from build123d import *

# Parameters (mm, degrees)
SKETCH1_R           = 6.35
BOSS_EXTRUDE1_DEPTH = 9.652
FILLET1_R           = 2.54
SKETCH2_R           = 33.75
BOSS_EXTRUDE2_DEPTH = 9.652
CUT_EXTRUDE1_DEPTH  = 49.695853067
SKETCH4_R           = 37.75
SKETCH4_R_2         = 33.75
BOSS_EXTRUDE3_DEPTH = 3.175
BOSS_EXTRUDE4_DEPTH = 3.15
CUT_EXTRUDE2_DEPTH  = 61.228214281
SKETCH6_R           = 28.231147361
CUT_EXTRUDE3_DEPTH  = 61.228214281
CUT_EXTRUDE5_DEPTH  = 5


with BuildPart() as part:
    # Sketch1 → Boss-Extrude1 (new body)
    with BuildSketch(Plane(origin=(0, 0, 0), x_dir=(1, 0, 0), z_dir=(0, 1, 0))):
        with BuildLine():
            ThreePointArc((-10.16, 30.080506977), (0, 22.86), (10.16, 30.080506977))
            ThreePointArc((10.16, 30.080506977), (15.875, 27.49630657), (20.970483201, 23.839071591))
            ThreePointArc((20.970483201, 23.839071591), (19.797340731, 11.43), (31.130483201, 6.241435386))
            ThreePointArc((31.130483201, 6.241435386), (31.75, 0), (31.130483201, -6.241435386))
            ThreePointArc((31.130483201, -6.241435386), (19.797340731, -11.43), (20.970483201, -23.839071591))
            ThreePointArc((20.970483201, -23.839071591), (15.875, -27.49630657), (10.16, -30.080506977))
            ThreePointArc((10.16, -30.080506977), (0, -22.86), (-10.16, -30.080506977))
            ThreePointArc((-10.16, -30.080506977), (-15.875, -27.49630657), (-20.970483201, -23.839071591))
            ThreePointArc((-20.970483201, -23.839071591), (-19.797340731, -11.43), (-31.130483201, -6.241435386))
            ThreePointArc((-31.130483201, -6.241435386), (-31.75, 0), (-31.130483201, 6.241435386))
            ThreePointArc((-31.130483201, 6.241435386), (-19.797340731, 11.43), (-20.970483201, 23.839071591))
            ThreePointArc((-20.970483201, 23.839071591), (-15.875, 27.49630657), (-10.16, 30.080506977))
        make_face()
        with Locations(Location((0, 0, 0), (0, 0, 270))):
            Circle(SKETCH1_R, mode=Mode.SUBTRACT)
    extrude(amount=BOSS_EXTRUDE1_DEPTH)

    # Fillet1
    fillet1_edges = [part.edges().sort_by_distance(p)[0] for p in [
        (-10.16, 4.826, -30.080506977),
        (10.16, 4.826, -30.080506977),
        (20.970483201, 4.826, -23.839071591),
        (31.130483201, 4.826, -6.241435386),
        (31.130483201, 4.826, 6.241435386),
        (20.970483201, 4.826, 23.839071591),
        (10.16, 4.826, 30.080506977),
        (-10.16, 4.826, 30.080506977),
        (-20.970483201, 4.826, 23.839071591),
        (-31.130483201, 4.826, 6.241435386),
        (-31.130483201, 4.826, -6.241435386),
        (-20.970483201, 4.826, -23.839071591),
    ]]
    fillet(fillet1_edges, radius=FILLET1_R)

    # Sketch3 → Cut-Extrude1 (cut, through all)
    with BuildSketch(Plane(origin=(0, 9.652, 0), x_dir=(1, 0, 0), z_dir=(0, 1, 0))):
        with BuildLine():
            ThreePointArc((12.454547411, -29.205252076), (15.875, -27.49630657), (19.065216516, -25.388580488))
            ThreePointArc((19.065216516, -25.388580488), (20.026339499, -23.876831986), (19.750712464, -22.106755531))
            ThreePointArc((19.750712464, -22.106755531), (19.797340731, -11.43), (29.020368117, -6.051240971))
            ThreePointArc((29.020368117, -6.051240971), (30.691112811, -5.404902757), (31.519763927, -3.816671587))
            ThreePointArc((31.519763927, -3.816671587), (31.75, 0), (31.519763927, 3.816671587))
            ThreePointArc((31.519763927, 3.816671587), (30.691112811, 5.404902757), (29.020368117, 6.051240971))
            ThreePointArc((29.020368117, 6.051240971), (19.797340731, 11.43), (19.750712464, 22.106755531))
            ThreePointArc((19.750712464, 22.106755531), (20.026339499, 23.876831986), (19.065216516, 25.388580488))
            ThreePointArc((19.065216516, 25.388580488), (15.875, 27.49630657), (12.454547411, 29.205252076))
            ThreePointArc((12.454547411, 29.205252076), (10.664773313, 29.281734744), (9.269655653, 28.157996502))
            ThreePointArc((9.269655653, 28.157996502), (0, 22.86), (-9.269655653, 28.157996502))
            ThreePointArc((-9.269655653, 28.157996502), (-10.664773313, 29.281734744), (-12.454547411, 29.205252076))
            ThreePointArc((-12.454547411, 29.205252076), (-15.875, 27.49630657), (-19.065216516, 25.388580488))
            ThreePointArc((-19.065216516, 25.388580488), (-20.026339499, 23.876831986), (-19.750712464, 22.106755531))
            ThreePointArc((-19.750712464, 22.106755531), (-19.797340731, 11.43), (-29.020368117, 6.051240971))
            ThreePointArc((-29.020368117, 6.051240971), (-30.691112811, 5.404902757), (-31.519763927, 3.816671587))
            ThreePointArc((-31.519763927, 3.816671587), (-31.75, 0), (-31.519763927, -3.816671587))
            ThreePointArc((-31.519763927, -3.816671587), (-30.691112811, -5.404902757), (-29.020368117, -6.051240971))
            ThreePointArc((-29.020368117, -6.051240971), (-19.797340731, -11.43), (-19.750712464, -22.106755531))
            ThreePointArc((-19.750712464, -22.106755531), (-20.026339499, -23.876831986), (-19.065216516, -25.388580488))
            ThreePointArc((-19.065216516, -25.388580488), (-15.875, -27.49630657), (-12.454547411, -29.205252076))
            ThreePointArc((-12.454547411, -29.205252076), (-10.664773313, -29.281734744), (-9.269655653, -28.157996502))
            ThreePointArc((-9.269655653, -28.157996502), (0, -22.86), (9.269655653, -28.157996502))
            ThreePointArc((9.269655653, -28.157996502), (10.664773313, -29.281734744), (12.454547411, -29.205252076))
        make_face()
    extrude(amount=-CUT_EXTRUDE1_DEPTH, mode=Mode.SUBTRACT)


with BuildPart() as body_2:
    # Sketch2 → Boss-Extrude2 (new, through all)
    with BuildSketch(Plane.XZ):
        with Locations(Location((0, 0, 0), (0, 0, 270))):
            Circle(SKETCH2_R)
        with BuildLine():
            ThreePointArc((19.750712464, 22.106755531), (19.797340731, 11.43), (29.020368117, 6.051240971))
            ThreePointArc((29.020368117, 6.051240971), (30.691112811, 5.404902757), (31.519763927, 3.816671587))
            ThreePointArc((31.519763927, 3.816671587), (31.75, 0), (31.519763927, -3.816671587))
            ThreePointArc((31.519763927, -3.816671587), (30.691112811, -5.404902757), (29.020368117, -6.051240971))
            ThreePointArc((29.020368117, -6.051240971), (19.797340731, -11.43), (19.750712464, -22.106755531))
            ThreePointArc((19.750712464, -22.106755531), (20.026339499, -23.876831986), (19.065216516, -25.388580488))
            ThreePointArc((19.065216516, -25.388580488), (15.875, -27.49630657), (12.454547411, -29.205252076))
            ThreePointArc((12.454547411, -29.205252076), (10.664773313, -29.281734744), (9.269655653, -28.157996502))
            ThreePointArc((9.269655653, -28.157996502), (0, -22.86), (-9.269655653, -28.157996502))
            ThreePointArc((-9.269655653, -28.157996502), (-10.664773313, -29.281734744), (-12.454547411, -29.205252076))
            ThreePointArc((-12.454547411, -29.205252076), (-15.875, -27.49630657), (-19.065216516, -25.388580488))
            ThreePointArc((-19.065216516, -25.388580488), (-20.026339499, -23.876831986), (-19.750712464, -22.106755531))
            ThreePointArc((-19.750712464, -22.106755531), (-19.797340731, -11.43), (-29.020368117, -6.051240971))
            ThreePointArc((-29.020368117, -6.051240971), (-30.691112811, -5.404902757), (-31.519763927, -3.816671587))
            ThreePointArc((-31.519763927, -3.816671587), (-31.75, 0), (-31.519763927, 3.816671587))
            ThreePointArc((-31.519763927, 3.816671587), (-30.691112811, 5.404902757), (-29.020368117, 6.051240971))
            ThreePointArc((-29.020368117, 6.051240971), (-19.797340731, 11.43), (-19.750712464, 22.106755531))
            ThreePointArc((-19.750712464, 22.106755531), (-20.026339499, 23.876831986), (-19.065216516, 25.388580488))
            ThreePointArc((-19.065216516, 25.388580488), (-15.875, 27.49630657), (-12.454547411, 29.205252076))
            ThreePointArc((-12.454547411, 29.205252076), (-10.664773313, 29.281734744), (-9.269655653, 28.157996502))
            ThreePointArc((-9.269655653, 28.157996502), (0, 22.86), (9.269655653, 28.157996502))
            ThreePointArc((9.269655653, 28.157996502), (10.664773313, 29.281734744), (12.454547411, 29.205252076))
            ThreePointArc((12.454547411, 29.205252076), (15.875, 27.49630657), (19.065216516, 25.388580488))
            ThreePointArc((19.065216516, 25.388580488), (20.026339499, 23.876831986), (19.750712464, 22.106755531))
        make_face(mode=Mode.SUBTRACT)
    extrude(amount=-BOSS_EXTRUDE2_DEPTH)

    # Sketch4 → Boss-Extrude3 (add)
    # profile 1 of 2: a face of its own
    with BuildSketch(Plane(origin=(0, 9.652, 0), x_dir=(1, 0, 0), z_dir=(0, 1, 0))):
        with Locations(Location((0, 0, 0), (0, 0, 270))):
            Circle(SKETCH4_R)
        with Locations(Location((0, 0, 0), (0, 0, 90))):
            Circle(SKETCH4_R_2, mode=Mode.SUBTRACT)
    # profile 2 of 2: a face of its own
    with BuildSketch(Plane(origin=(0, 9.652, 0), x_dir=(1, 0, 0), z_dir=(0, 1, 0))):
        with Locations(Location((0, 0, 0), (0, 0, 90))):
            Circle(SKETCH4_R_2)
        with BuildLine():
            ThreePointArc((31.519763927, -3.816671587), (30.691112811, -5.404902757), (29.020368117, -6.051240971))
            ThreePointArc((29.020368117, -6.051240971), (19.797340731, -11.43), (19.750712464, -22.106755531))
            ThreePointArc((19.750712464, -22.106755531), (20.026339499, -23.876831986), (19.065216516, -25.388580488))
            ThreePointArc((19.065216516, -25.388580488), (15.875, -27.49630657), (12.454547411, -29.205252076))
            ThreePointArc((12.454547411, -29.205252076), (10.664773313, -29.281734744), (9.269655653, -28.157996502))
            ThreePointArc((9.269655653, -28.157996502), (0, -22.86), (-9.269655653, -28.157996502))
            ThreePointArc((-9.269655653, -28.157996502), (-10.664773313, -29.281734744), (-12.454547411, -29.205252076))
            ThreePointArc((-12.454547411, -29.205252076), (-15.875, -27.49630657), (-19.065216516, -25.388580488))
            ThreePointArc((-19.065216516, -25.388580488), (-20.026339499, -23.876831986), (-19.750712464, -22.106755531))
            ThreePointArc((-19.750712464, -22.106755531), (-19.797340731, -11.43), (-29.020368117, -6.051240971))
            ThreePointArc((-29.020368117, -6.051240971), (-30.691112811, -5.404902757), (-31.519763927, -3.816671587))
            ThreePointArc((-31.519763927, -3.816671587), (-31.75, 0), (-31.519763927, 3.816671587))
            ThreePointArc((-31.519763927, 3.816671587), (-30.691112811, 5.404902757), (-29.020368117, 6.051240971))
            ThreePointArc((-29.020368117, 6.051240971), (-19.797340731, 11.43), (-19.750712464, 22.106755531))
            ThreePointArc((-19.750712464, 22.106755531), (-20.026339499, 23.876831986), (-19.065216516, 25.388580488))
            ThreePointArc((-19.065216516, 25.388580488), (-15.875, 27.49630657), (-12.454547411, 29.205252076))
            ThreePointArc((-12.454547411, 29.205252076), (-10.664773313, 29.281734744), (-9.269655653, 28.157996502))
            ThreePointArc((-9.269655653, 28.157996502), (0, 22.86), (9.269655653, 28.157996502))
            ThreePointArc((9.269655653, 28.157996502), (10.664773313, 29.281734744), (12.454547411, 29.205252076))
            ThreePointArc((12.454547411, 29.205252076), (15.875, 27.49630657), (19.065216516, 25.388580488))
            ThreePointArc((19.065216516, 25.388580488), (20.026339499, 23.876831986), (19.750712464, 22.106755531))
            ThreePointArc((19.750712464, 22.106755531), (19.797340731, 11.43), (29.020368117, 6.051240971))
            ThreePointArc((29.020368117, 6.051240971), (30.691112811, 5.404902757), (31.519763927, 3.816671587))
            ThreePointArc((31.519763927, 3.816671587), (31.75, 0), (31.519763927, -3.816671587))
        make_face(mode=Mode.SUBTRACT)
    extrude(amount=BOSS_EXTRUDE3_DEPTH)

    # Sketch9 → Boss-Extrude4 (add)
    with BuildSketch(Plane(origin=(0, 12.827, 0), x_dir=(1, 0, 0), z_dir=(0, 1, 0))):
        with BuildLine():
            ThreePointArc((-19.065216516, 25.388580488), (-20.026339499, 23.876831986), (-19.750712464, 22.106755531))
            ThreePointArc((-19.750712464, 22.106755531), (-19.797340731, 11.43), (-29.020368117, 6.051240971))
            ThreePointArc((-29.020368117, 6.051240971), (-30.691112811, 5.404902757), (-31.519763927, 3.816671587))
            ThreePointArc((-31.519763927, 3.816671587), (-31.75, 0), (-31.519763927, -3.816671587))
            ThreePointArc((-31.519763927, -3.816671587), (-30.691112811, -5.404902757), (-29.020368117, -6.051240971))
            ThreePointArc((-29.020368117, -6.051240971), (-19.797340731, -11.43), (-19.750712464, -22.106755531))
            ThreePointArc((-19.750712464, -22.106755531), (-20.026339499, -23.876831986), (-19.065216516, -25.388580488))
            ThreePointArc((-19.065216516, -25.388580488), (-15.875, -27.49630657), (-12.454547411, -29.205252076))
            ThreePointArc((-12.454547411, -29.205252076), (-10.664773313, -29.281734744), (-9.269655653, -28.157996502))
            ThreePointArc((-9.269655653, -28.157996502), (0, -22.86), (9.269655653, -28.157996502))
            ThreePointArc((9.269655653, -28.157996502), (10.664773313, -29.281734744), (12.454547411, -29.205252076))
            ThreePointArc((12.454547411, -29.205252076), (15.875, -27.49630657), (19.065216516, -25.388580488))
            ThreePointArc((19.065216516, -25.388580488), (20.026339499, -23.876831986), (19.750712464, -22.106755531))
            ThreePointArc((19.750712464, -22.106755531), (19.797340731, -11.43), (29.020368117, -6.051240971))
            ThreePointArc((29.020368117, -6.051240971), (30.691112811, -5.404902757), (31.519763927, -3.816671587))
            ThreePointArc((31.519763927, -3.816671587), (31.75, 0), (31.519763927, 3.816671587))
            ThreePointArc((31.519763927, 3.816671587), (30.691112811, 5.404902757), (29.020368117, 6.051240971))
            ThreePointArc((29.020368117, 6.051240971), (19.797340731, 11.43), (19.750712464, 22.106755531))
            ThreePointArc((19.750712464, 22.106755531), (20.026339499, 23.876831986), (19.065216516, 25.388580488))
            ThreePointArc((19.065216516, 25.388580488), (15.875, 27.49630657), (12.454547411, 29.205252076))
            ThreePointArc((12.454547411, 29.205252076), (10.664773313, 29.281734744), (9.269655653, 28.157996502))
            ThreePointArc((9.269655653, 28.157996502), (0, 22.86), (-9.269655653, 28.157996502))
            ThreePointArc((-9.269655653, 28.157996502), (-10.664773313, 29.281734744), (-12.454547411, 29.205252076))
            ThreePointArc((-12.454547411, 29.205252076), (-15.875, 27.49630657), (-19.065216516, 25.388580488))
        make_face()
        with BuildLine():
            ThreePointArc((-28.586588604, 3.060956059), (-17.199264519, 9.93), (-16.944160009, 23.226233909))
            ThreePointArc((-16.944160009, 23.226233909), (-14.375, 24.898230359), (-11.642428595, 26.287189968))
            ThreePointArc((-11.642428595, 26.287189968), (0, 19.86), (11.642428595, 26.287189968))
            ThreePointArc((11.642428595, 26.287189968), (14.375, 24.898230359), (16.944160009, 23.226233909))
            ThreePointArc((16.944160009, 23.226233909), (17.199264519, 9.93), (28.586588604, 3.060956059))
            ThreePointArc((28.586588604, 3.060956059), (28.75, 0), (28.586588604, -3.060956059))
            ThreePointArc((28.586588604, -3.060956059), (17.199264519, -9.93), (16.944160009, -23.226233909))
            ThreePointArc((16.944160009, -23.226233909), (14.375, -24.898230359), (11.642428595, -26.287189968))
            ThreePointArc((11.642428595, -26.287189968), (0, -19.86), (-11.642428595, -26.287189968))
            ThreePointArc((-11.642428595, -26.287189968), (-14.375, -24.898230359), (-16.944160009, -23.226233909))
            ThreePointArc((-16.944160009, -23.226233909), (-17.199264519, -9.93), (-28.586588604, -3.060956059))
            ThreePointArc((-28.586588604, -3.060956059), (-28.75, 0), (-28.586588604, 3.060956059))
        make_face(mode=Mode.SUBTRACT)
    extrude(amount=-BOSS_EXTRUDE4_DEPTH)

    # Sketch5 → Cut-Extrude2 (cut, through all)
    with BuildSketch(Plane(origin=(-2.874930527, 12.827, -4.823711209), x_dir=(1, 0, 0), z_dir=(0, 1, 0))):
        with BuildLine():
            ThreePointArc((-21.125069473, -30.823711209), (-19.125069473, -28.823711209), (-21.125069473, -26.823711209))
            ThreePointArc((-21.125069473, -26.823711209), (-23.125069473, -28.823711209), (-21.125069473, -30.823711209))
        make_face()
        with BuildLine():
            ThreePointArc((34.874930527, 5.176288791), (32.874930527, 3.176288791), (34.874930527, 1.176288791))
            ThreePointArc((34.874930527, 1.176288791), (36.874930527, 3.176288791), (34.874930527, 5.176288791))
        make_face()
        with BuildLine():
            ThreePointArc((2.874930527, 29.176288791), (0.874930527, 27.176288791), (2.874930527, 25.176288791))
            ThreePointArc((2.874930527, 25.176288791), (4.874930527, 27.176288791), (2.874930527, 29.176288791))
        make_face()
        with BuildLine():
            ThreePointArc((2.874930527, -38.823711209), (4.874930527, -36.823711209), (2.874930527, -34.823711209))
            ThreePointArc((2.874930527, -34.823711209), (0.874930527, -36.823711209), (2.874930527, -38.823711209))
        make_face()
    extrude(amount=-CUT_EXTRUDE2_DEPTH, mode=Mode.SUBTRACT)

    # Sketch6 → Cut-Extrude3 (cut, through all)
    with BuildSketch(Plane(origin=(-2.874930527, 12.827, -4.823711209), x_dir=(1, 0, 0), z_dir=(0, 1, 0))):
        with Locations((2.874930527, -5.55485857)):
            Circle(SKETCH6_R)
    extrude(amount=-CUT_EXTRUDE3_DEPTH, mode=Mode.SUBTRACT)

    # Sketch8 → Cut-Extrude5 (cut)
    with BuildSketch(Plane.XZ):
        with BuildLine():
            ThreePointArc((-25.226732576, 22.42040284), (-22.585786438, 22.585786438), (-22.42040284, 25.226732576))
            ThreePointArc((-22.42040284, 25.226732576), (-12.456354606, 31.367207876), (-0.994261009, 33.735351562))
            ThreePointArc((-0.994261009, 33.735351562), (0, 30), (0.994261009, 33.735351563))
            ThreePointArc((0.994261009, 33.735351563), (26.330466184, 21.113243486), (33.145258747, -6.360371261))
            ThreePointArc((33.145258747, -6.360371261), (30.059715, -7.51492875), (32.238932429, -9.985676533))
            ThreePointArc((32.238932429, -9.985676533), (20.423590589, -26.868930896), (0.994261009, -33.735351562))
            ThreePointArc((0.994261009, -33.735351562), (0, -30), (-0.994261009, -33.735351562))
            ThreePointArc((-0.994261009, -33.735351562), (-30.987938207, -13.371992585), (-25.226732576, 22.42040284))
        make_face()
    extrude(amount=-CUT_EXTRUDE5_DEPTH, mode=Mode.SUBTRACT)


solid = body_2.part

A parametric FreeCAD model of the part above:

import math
import FreeCAD as App
import Part
import Sketcher

V = App.Vector
Q = App.Units.Quantity


def edges_at(feature, points):
    """Names of the edges that pass closest to the given points."""
    edges = feature.Shape.Edges
    near = lambda p: min(range(len(edges)), key=lambda i: edges[i].distToShape(Part.Vertex(*p))[0])
    return sorted({f"Edge{near(p) + 1}" for p in points})

doc = App.newDocument("Part")
body = doc.addObject("PartDesign::Body", "Body")

sketch1 = body.newObject("Sketcher::SketchObject", "Sketch")
sketch1.AttachmentSupport = (doc.getObject("XZ_Plane"), [""])
sketch1.MapMode = "FlatFace"
sketch1.addGeometry([
    Part.ArcOfCircle(Part.Circle(V(0, -34, 0), V(0, 0, 1), 11), math.radians(19), math.radians(161)),
    Part.ArcOfCircle(Part.Circle(V(0, 0, 0), V(0, 0, 1), 32), math.radians(-131), math.radians(-109)),
    Part.ArcOfCircle(Part.Circle(V(-29, -17, 0), V(0, 0, 1), 11), math.radians(-41), math.radians(101)),
    Part.ArcOfCircle(Part.Circle(V(0, 0, 0), V(0, 0, 1), 32), math.radians(169), math.radians(191)),
    Part.ArcOfCircle(Part.Circle(V(-29, 17, 0), V(0, 0, 1), 11), math.radians(-101), math.radians(41)),
    Part.ArcOfCircle(Part.Circle(V(0, 0, 0), V(0, 0, 1), 32), math.radians(109), math.radians(131)),
    Part.ArcOfCircle(Part.Circle(V(0, 34, 0), V(0, 0, 1), 11), math.radians(-161), math.radians(-19)),
    Part.ArcOfCircle(Part.Circle(V(0, 0, 0), V(0, 0, 1), 32), math.radians(49), math.radians(71)),
    Part.ArcOfCircle(Part.Circle(V(29, 17, 0), V(0, 0, 1), 11), math.radians(139), math.radians(281)),
    Part.ArcOfCircle(Part.Circle(V(0, 0, 0), V(0, 0, 1), 32), math.radians(-11), math.radians(11)),
    Part.ArcOfCircle(Part.Circle(V(29, -17, 0), V(0, 0, 1), 11), math.radians(79), math.radians(221)),
    Part.ArcOfCircle(Part.Circle(V(0, 0, 0), V(0, 0, 1), 32), math.radians(-71), math.radians(-49)),
    Part.Circle(V(0, 0, 0), V(0, 0, 1), 6),
], False)
sketch1.addConstraint([
    Sketcher.Constraint("Coincident", 0, 2, 1, 2),
    Sketcher.Constraint("Coincident", 1, 1, 2, 1),
    Sketcher.Constraint("Coincident", 2, 2, 3, 2),
    Sketcher.Constraint("Coincident", 3, 1, 4, 1),
    Sketcher.Constraint("Coincident", 4, 2, 5, 2),
    Sketcher.Constraint("Coincident", 5, 1, 6, 1),
    Sketcher.Constraint("Coincident", 6, 2, 7, 2),
    Sketcher.Constraint("Coincident", 7, 1, 8, 1),
    Sketcher.Constraint("Coincident", 8, 2, 9, 2),
    Sketcher.Constraint("Coincident", 9, 1, 10, 1),
    Sketcher.Constraint("Coincident", 10, 2, 11, 2),
    Sketcher.Constraint("Coincident", 11, 1, 0, 1),
    Sketcher.Constraint("Coincident", 1, 3, -1, 1),
    Sketcher.Constraint("Coincident", 3, 3, -1, 1),
    Sketcher.Constraint("Coincident", 5, 3, -1, 1),
    Sketcher.Constraint("Coincident", 7, 3, -1, 1),
    Sketcher.Constraint("Coincident", 9, 3, -1, 1),
    Sketcher.Constraint("Coincident", 11, 3, -1, 1),
    Sketcher.Constraint("Coincident", 12, 3, -1, 1),
    Sketcher.Constraint("Equal", 0, 2),
    Sketcher.Constraint("Equal", 1, 3),
    Sketcher.Constraint("Equal", 2, 4),
    Sketcher.Constraint("Equal", 3, 5),
    Sketcher.Constraint("Equal", 4, 6),
    Sketcher.Constraint("Equal", 5, 7),
    Sketcher.Constraint("Equal", 6, 8),
    Sketcher.Constraint("Equal", 7, 9),
    Sketcher.Constraint("Equal", 8, 10),
    Sketcher.Constraint("Equal", 9, 11),
    Sketcher.Constraint("Symmetric", 0, 3, 6, 3, -1, 1),
    Sketcher.Constraint("Symmetric", 2, 3, 8, 3, -1, 1),
    Sketcher.Constraint("Symmetric", 4, 3, 10, 3, -1, 1),
    Sketcher.Constraint("Symmetric", 4, 3, 8, 3, -2),
    Sketcher.Constraint("PointOnObject", 0, 3, -2),
    Sketcher.Constraint("Diameter", 12, Q("0.5 in")),
    Sketcher.Constraint("Radius", 1, Q("1.25 in")),
    Sketcher.Constraint("DistanceX", 0, 2, -1, 1, Q("0.4 in")),
    Sketcher.Constraint("DistanceX", 2, 2, 1, 1, Q("0.4 in")),
    Sketcher.Constraint("Radius", 0, Q("10.758339 mm")),
    Sketcher.Constraint("DistanceY", 2, 3, -1, 1, Q("16.809169 mm")),
])
pad1 = body.newObject("PartDesign::Pad", "Pad")
pad1.Profile = sketch1
pad1.Length = Q("0.38 in")
pad1.Reversed = True
doc.recompute()

fillet = body.newObject("PartDesign::Fillet", "Fillet")
fillet.Base = (pad1, edges_at(pad1, [
    (-10.16, 4.826, -30.081),
    (10.16, 4.826, -30.081),
    (20.97, 4.826, -23.839),
    (31.13, 4.826, -6.241),
    (31.13, 4.826, 6.241),
    (20.97, 4.826, 23.839),
    (10.16, 4.826, 30.081),
    (-10.16, 4.826, 30.081),
    (-20.97, 4.826, 23.839),
    (-31.13, 4.826, 6.241),
    (-31.13, 4.826, -6.241),
    (-20.97, 4.826, -23.839),
]))
fillet.Radius = Q("0.1 in")

sketch2 = body.newObject("Sketcher::SketchObject", "Sketch001")
sketch2.AttachmentSupport = (doc.getObject("XZ_Plane"), [""])
sketch2.MapMode = "FlatFace"
sketch2.AttachmentOffset = App.Placement(V(0, 0, -0.38 * 25.4), App.Rotation())
sketch2.addGeometry([
    Part.ArcOfCircle(Part.Circle(V(0, 0, 0), V(0, 0, 1), 31.8), math.radians(53.1), math.radians(66.9)),
    Part.ArcOfCircle(Part.Circle(V(17.5, 23.4, 0), V(0, 0, 1), 2.5), math.radians(-29), math.radians(53)),
    Part.ArcOfCircle(Part.Circle(V(29.1, 16.8, 0), V(0, 0, 1), 10.8), math.radians(151), math.radians(269)),
    Part.ArcOfCircle(Part.Circle(V(29, 3.5, 0), V(0, 0, 1), 2.5), math.radians(7), math.radians(89)),
    Part.ArcOfCircle(Part.Circle(V(0, 0, 0), V(0, 0, 1), 31.8), math.radians(-6.9), math.radians(6.9)),
    Part.ArcOfCircle(Part.Circle(V(29, -3.5, 0), V(0, 0, 1), 2.5), math.radians(-89), math.radians(-7)),
    Part.ArcOfCircle(Part.Circle(V(29.1, -16.8, 0), V(0, 0, 1), 10.8), math.radians(91), math.radians(209)),
    Part.ArcOfCircle(Part.Circle(V(17.5, -23.4, 0), V(0, 0, 1), 2.5), math.radians(-53), math.radians(29)),
    Part.ArcOfCircle(Part.Circle(V(0, 0, 0), V(0, 0, 1), 31.8), math.radians(-66.9), math.radians(-53.1)),
    Part.ArcOfCircle(Part.Circle(V(11.5, -26.9, 0), V(0, 0, 1), 2.5), math.radians(-149), math.radians(-67)),
    Part.ArcOfCircle(Part.Circle(V(0, -33.6, 0), V(0, 0, 1), 10.8), math.radians(31), math.radians(149)),
    Part.ArcOfCircle(Part.Circle(V(-11.5, -26.9, 0), V(0, 0, 1), 2.5), math.radians(-113), math.radians(-31)),
    Part.ArcOfCircle(Part.Circle(V(0, 0, 0), V(0, 0, 1), 31.8), math.radians(-126.9), math.radians(-113.1)),
    Part.ArcOfCircle(Part.Circle(V(-17.5, -23.4, 0), V(0, 0, 1), 2.5), math.radians(151), math.radians(233)),
    Part.ArcOfCircle(Part.Circle(V(-29.1, -16.8, 0), V(0, 0, 1), 10.8), math.radians(-29), math.radians(89)),
    Part.ArcOfCircle(Part.Circle(V(-29, -3.5, 0), V(0, 0, 1), 2.5), math.radians(-173), math.radians(-91)),
    Part.ArcOfCircle(Part.Circle(V(0, 0, 0), V(0, 0, 1), 31.8), math.radians(173.1), math.radians(186.9)),
    Part.ArcOfCircle(Part.Circle(V(-29, 3.5, 0), V(0, 0, 1), 2.5), math.radians(91), math.radians(173)),
    Part.ArcOfCircle(Part.Circle(V(-29.1, 16.8, 0), V(0, 0, 1), 10.8), math.radians(-89), math.radians(29)),
    Part.ArcOfCircle(Part.Circle(V(-17.5, 23.4, 0), V(0, 0, 1), 2.5), math.radians(127), math.radians(209)),
    Part.ArcOfCircle(Part.Circle(V(0, 0, 0), V(0, 0, 1), 31.8), math.radians(113.1), math.radians(126.9)),
    Part.ArcOfCircle(Part.Circle(V(-11.5, 26.9, 0), V(0, 0, 1), 2.5), math.radians(31), math.radians(113)),
    Part.ArcOfCircle(Part.Circle(V(0, 33.6, 0), V(0, 0, 1), 10.8), math.radians(-149), math.radians(-31)),
    Part.ArcOfCircle(Part.Circle(V(11.5, 26.9, 0), V(0, 0, 1), 2.5), math.radians(67), math.radians(149)),
], False)
sketch2.addConstraint([
    Sketcher.Constraint("Tangent", 0, 1, 1, 2),
    Sketcher.Constraint("Tangent", 1, 1, 2, 1),
    Sketcher.Constraint("Tangent", 2, 2, 3, 2),
    Sketcher.Constraint("Tangent", 3, 1, 4, 2),
    Sketcher.Constraint("Tangent", 4, 1, 5, 2),
    Sketcher.Constraint("Tangent", 5, 1, 6, 1),
    Sketcher.Constraint("Tangent", 6, 2, 7, 2),
    Sketcher.Constraint("Tangent", 7, 1, 8, 2),
    Sketcher.Constraint("Tangent", 8, 1, 9, 2),
    Sketcher.Constraint("Tangent", 9, 1, 10, 1),
    Sketcher.Constraint("Tangent", 10, 2, 11, 2),
    Sketcher.Constraint("Tangent", 11, 1, 12, 2),
    Sketcher.Constraint("Tangent", 12, 1, 13, 2),
    Sketcher.Constraint("Tangent", 13, 1, 14, 1),
    Sketcher.Constraint("Tangent", 14, 2, 15, 2),
    Sketcher.Constraint("Tangent", 15, 1, 16, 2),
    Sketcher.Constraint("Tangent", 16, 1, 17, 2),
    Sketcher.Constraint("Tangent", 17, 1, 18, 1),
    Sketcher.Constraint("Tangent", 18, 2, 19, 2),
    Sketcher.Constraint("Tangent", 19, 1, 20, 2),
    Sketcher.Constraint("Tangent", 20, 1, 21, 2),
    Sketcher.Constraint("Tangent", 21, 1, 22, 1),
    Sketcher.Constraint("Tangent", 22, 2, 23, 2),
    Sketcher.Constraint("Tangent", 23, 1, 0, 2),
    Sketcher.Constraint("Coincident", 0, 3, -1, 1),
    Sketcher.Constraint("Coincident", 4, 3, -1, 1),
    Sketcher.Constraint("Coincident", 8, 3, -1, 1),
    Sketcher.Constraint("Coincident", 12, 3, -1, 1),
    Sketcher.Constraint("Coincident", 16, 3, -1, 1),
    Sketcher.Constraint("Coincident", 20, 3, -1, 1),
    Sketcher.Constraint("Equal", 1, 3),
    Sketcher.Constraint("Equal", 0, 4),
    Sketcher.Constraint("Equal", 3, 5),
    Sketcher.Constraint("Equal", 2, 6),
    Sketcher.Constraint("Equal", 5, 7),
    Sketcher.Constraint("Equal", 4, 8),
    Sketcher.Constraint("Equal", 7, 9),
    Sketcher.Constraint("Equal", 6, 10),
    Sketcher.Constraint("Equal", 9, 11),
    Sketcher.Constraint("Equal", 8, 12),
    Sketcher.Constraint("Equal", 11, 13),
    Sketcher.Constraint("Equal", 10, 14),
    Sketcher.Constraint("Equal", 13, 15),
    Sketcher.Constraint("Equal", 12, 16),
    Sketcher.Constraint("Equal", 15, 17),
    Sketcher.Constraint("Equal", 14, 18),
    Sketcher.Constraint("Equal", 17, 19),
    Sketcher.Constraint("Equal", 16, 20),
    Sketcher.Constraint("Equal", 19, 21),
    Sketcher.Constraint("Equal", 18, 22),
    Sketcher.Constraint("Equal", 21, 23),
    Sketcher.Constraint("Symmetric", 2, 3, 14, 3, -1, 1),
    Sketcher.Constraint("Symmetric", 6, 3, 18, 3, -1, 1),
    Sketcher.Constraint("Symmetric", 10, 3, 22, 3, -1, 1),
    Sketcher.Constraint("Symmetric", 6, 3, 14, 3, -2),
    Sketcher.Constraint("PointOnObject", 10, 3, -2),
    Sketcher.Constraint("Radius", 1, Q("0.1 in")),
    Sketcher.Constraint("Radius", 0, Q("1.25 in")),
    Sketcher.Constraint("Radius", 2, Q("10.758339 mm")),
    Sketcher.Constraint("DistanceX", -1, 1, 1, 3, Q("17.539999 mm")),
    Sketcher.Constraint("DistanceX", 9, 3, 5, 3, Q("17.539999 mm")),
    Sketcher.Constraint("DistanceY", -1, 1, 2, 3, Q("16.809169 mm")),
])
pocket1 = body.newObject("PartDesign::Pocket", "Pocket")
pocket1.Profile = sketch2
pocket1.Type = "ThroughAll"
pocket1.Reversed = True
body2 = doc.addObject("PartDesign::Body", "Body001")

sketch3 = body2.newObject("Sketcher::SketchObject", "Sketch002")
sketch3.AttachmentSupport = (doc.getObject("XZ_Plane001"), [""])
sketch3.MapMode = "FlatFace"
sketch3.addGeometry([
    Part.Circle(V(0, 0, 0), V(0, 0, 1), 33.8),
    Part.ArcOfCircle(Part.Circle(V(17.5, 23.4, 0), V(0, 0, 1), 2.5), math.radians(-29), math.radians(53)),
    Part.ArcOfCircle(Part.Circle(V(29.1, 16.8, 0), V(0, 0, 1), 10.8), math.radians(151), math.radians(269)),
    Part.ArcOfCircle(Part.Circle(V(29, 3.5, 0), V(0, 0, 1), 2.5), math.radians(7), math.radians(89)),
    Part.ArcOfCircle(Part.Circle(V(0, 0, 0), V(0, 0, 1), 31.8), math.radians(-6.9), math.radians(6.9)),
    Part.ArcOfCircle(Part.Circle(V(29, -3.5, 0), V(0, 0, 1), 2.5), math.radians(-89), math.radians(-7)),
    Part.ArcOfCircle(Part.Circle(V(29.1, -16.8, 0), V(0, 0, 1), 10.8), math.radians(91), math.radians(209)),
    Part.ArcOfCircle(Part.Circle(V(17.5, -23.4, 0), V(0, 0, 1), 2.5), math.radians(-53), math.radians(29)),
    Part.ArcOfCircle(Part.Circle(V(0, 0, 0), V(0, 0, 1), 31.8), math.radians(-66.9), math.radians(-53.1)),
    Part.ArcOfCircle(Part.Circle(V(11.5, -26.9, 0), V(0, 0, 1), 2.5), math.radians(-149), math.radians(-67)),
    Part.ArcOfCircle(Part.Circle(V(0, -33.6, 0), V(0, 0, 1), 10.8), math.radians(31), math.radians(149)),
    Part.ArcOfCircle(Part.Circle(V(-11.5, -26.9, 0), V(0, 0, 1), 2.5), math.radians(-113), math.radians(-31)),
    Part.ArcOfCircle(Part.Circle(V(0, 0, 0), V(0, 0, 1), 31.8), math.radians(-126.9), math.radians(-113.1)),
    Part.ArcOfCircle(Part.Circle(V(-17.5, -23.4, 0), V(0, 0, 1), 2.5), math.radians(151), math.radians(233)),
    Part.ArcOfCircle(Part.Circle(V(-29.1, -16.8, 0), V(0, 0, 1), 10.8), math.radians(-29), math.radians(89)),
    Part.ArcOfCircle(Part.Circle(V(-29, -3.5, 0), V(0, 0, 1), 2.5), math.radians(-173), math.radians(-91)),
    Part.ArcOfCircle(Part.Circle(V(0, 0, 0), V(0, 0, 1), 31.8), math.radians(173.1), math.radians(186.9)),
    Part.ArcOfCircle(Part.Circle(V(-29, 3.5, 0), V(0, 0, 1), 2.5), math.radians(91), math.radians(173)),
    Part.ArcOfCircle(Part.Circle(V(-29.1, 16.8, 0), V(0, 0, 1), 10.8), math.radians(-89), math.radians(29)),
    Part.ArcOfCircle(Part.Circle(V(-17.5, 23.4, 0), V(0, 0, 1), 2.5), math.radians(127), math.radians(209)),
    Part.ArcOfCircle(Part.Circle(V(0, 0, 0), V(0, 0, 1), 31.8), math.radians(113.1), math.radians(126.9)),
    Part.ArcOfCircle(Part.Circle(V(-11.5, 26.9, 0), V(0, 0, 1), 2.5), math.radians(31), math.radians(113)),
    Part.ArcOfCircle(Part.Circle(V(0, 33.6, 0), V(0, 0, 1), 10.8), math.radians(-149), math.radians(-31)),
    Part.ArcOfCircle(Part.Circle(V(11.5, 26.9, 0), V(0, 0, 1), 2.5), math.radians(67), math.radians(149)),
    Part.ArcOfCircle(Part.Circle(V(0, 0, 0), V(0, 0, 1), 31.8), math.radians(53.1), math.radians(66.9)),
], False)
sketch3.addConstraint([
    Sketcher.Constraint("Tangent", 1, 1, 2, 1),
    Sketcher.Constraint("Tangent", 2, 2, 3, 2),
    Sketcher.Constraint("Tangent", 3, 1, 4, 2),
    Sketcher.Constraint("Tangent", 4, 1, 5, 2),
    Sketcher.Constraint("Tangent", 5, 1, 6, 1),
    Sketcher.Constraint("Tangent", 6, 2, 7, 2),
    Sketcher.Constraint("Tangent", 7, 1, 8, 2),
    Sketcher.Constraint("Tangent", 8, 1, 9, 2),
    Sketcher.Constraint("Tangent", 9, 1, 10, 1),
    Sketcher.Constraint("Tangent", 10, 2, 11, 2),
    Sketcher.Constraint("Tangent", 11, 1, 12, 2),
    Sketcher.Constraint("Tangent", 12, 1, 13, 2),
    Sketcher.Constraint("Tangent", 13, 1, 14, 1),
    Sketcher.Constraint("Tangent", 14, 2, 15, 2),
    Sketcher.Constraint("Tangent", 15, 1, 16, 2),
    Sketcher.Constraint("Tangent", 16, 1, 17, 2),
    Sketcher.Constraint("Tangent", 17, 1, 18, 1),
    Sketcher.Constraint("Tangent", 18, 2, 19, 2),
    Sketcher.Constraint("Tangent", 19, 1, 20, 2),
    Sketcher.Constraint("Tangent", 20, 1, 21, 2),
    Sketcher.Constraint("Tangent", 21, 1, 22, 1),
    Sketcher.Constraint("Tangent", 22, 2, 23, 2),
    Sketcher.Constraint("Tangent", 23, 1, 24, 2),
    Sketcher.Constraint("Tangent", 24, 1, 1, 2),
    Sketcher.Constraint("Coincident", 0, 3, -1, 1),
    Sketcher.Constraint("Coincident", 4, 3, -1, 1),
    Sketcher.Constraint("Coincident", 8, 3, -1, 1),
    Sketcher.Constraint("Coincident", 12, 3, -1, 1),
    Sketcher.Constraint("Coincident", 16, 3, -1, 1),
    Sketcher.Constraint("Coincident", 20, 3, -1, 1),
    Sketcher.Constraint("Coincident", 24, 3, -1, 1),
    Sketcher.Constraint("Equal", 1, 3),
    Sketcher.Constraint("Equal", 3, 5),
    Sketcher.Constraint("Equal", 2, 6),
    Sketcher.Constraint("Equal", 5, 7),
    Sketcher.Constraint("Equal", 4, 8),
    Sketcher.Constraint("Equal", 7, 9),
    Sketcher.Constraint("Equal", 6, 10),
    Sketcher.Constraint("Equal", 9, 11),
    Sketcher.Constraint("Equal", 8, 12),
    Sketcher.Constraint("Equal", 11, 13),
    Sketcher.Constraint("Equal", 10, 14),
    Sketcher.Constraint("Equal", 13, 15),
    Sketcher.Constraint("Equal", 12, 16),
    Sketcher.Constraint("Equal", 15, 17),
    Sketcher.Constraint("Equal", 14, 18),
    Sketcher.Constraint("Equal", 17, 19),
    Sketcher.Constraint("Equal", 16, 20),
    Sketcher.Constraint("Equal", 19, 21),
    Sketcher.Constraint("Equal", 18, 22),
    Sketcher.Constraint("Equal", 21, 23),
    Sketcher.Constraint("Equal", 20, 24),
    Sketcher.Constraint("Symmetric", 2, 3, 14, 3, -1, 1),
    Sketcher.Constraint("Symmetric", 6, 3, 18, 3, -1, 1),
    Sketcher.Constraint("Symmetric", 10, 3, 22, 3, -1, 1),
    Sketcher.Constraint("Symmetric", 6, 3, 14, 3, -2),
    Sketcher.Constraint("PointOnObject", 10, 3, -2),
    Sketcher.Constraint("Radius", 1, Q("0.1 in")),
    Sketcher.Constraint("Radius", 4, Q("1.25 in")),
    Sketcher.Constraint("Diameter", 0, Q("67.5 mm")),
    Sketcher.Constraint("Radius", 2, Q("10.758339 mm")),
    Sketcher.Constraint("DistanceX", -1, 1, 1, 3, Q("17.539999 mm")),
    Sketcher.Constraint("DistanceX", 9, 3, 5, 3, Q("17.539999 mm")),
    Sketcher.Constraint("DistanceY", -1, 1, 2, 3, Q("16.809169 mm")),
])
pad2 = body2.newObject("PartDesign::Pad", "Pad001")
pad2.Profile = sketch3
pad2.Length = Q("0.38 in")
pad2.Reversed = True

sketch4 = body2.newObject("Sketcher::SketchObject", "Sketch003")
sketch4.AttachmentSupport = (doc.getObject("XZ_Plane001"), [""])
sketch4.MapMode = "FlatFace"
sketch4.AttachmentOffset = App.Placement(V(0, 0, -0.38 * 25.4), App.Rotation())
sketch4.addGeometry([
    Part.Circle(V(0, 0, 0), V(0, 0, 1), 37.8),
    Part.ArcOfCircle(Part.Circle(V(29, 3.5, 0), V(0, 0, 1), 2.5), math.radians(7), math.radians(89)),
    Part.ArcOfCircle(Part.Circle(V(29.1, 16.8, 0), V(0, 0, 1), 10.8), math.radians(151), math.radians(269)),
    Part.ArcOfCircle(Part.Circle(V(17.5, 23.4, 0), V(0, 0, 1), 2.5), math.radians(-29), math.radians(53)),
    Part.ArcOfCircle(Part.Circle(V(0, 0, 0), V(0, 0, 1), 31.8), math.radians(53.1), math.radians(66.9)),
    Part.ArcOfCircle(Part.Circle(V(11.5, 26.9, 0), V(0, 0, 1), 2.5), math.radians(67), math.radians(149)),
    Part.ArcOfCircle(Part.Circle(V(0, 33.6, 0), V(0, 0, 1), 10.8), math.radians(-149), math.radians(-31)),
    Part.ArcOfCircle(Part.Circle(V(-11.5, 26.9, 0), V(0, 0, 1), 2.5), math.radians(31), math.radians(113)),
    Part.ArcOfCircle(Part.Circle(V(0, 0, 0), V(0, 0, 1), 31.8), math.radians(113.1), math.radians(126.9)),
    Part.ArcOfCircle(Part.Circle(V(-17.5, 23.4, 0), V(0, 0, 1), 2.5), math.radians(127), math.radians(209)),
    Part.ArcOfCircle(Part.Circle(V(-29.1, 16.8, 0), V(0, 0, 1), 10.8), math.radians(-89), math.radians(29)),
    Part.ArcOfCircle(Part.Circle(V(-29, 3.5, 0), V(0, 0, 1), 2.5), math.radians(91), math.radians(173)),
    Part.ArcOfCircle(Part.Circle(V(0, 0, 0), V(0, 0, 1), 31.8), math.radians(173.1), math.radians(186.9)),
    Part.ArcOfCircle(Part.Circle(V(-29, -3.5, 0), V(0, 0, 1), 2.5), math.radians(-173), math.radians(-91)),
    Part.ArcOfCircle(Part.Circle(V(-29.1, -16.8, 0), V(0, 0, 1), 10.8), math.radians(-29), math.radians(89)),
    Part.ArcOfCircle(Part.Circle(V(-17.5, -23.4, 0), V(0, 0, 1), 2.5), math.radians(151), math.radians(233)),
    Part.ArcOfCircle(Part.Circle(V(0, 0, 0), V(0, 0, 1), 31.8), math.radians(-126.9), math.radians(-113.1)),
    Part.ArcOfCircle(Part.Circle(V(-11.5, -26.9, 0), V(0, 0, 1), 2.5), math.radians(-113), math.radians(-31)),
    Part.ArcOfCircle(Part.Circle(V(0, -33.6, 0), V(0, 0, 1), 10.8), math.radians(31), math.radians(149)),
    Part.ArcOfCircle(Part.Circle(V(11.5, -26.9, 0), V(0, 0, 1), 2.5), math.radians(-149), math.radians(-67)),
    Part.ArcOfCircle(Part.Circle(V(0, 0, 0), V(0, 0, 1), 31.8), math.radians(-66.9), math.radians(-53.1)),
    Part.ArcOfCircle(Part.Circle(V(17.5, -23.4, 0), V(0, 0, 1), 2.5), math.radians(-53), math.radians(29)),
    Part.ArcOfCircle(Part.Circle(V(29.1, -16.8, 0), V(0, 0, 1), 10.8), math.radians(91), math.radians(209)),
    Part.ArcOfCircle(Part.Circle(V(29, -3.5, 0), V(0, 0, 1), 2.5), math.radians(-89), math.radians(-7)),
    Part.ArcOfCircle(Part.Circle(V(0, 0, 0), V(0, 0, 1), 31.8), math.radians(-6.9), math.radians(6.9)),
], False)
sketch4.addConstraint([
    Sketcher.Constraint("Tangent", 1, 2, 2, 2),
    Sketcher.Constraint("Tangent", 2, 1, 3, 1),
    Sketcher.Constraint("Tangent", 3, 2, 4, 1),
    Sketcher.Constraint("Tangent", 4, 2, 5, 1),
    Sketcher.Constraint("Tangent", 5, 2, 6, 2),
    Sketcher.Constraint("Tangent", 6, 1, 7, 1),
    Sketcher.Constraint("Tangent", 7, 2, 8, 1),
    Sketcher.Constraint("Tangent", 8, 2, 9, 1),
    Sketcher.Constraint("Tangent", 9, 2, 10, 2),
    Sketcher.Constraint("Tangent", 10, 1, 11, 1),
    Sketcher.Constraint("Tangent", 11, 2, 12, 1),
    Sketcher.Constraint("Tangent", 12, 2, 13, 1),
    Sketcher.Constraint("Tangent", 13, 2, 14, 2),
    Sketcher.Constraint("Tangent", 14, 1, 15, 1),
    Sketcher.Constraint("Tangent", 15, 2, 16, 1),
    Sketcher.Constraint("Tangent", 16, 2, 17, 1),
    Sketcher.Constraint("Tangent", 17, 2, 18, 2),
    Sketcher.Constraint("Tangent", 18, 1, 19, 1),
    Sketcher.Constraint("Tangent", 19, 2, 20, 1),
    Sketcher.Constraint("Tangent", 20, 2, 21, 1),
    Sketcher.Constraint("Tangent", 21, 2, 22, 2),
    Sketcher.Constraint("Tangent", 22, 1, 23, 1),
    Sketcher.Constraint("Tangent", 23, 2, 24, 1),
    Sketcher.Constraint("Tangent", 24, 2, 1, 1),
    Sketcher.Constraint("Coincident", 0, 3, -1, 1),
    Sketcher.Constraint("Coincident", 4, 3, -1, 1),
    Sketcher.Constraint("Coincident", 8, 3, -1, 1),
    Sketcher.Constraint("Coincident", 12, 3, -1, 1),
    Sketcher.Constraint("Coincident", 16, 3, -1, 1),
    Sketcher.Constraint("Coincident", 20, 3, -1, 1),
    Sketcher.Constraint("Coincident", 24, 3, -1, 1),
    Sketcher.Constraint("Equal", 1, 3),
    Sketcher.Constraint("Equal", 3, 5),
    Sketcher.Constraint("Equal", 2, 6),
    Sketcher.Constraint("Equal", 5, 7),
    Sketcher.Constraint("Equal", 4, 8),
    Sketcher.Constraint("Equal", 7, 9),
    Sketcher.Constraint("Equal", 6, 10),
    Sketcher.Constraint("Equal", 9, 11),
    Sketcher.Constraint("Equal", 8, 12),
    Sketcher.Constraint("Equal", 11, 13),
    Sketcher.Constraint("Equal", 10, 14),
    Sketcher.Constraint("Equal", 13, 15),
    Sketcher.Constraint("Equal", 12, 16),
    Sketcher.Constraint("Equal", 15, 17),
    Sketcher.Constraint("Equal", 14, 18),
    Sketcher.Constraint("Equal", 17, 19),
    Sketcher.Constraint("Equal", 16, 20),
    Sketcher.Constraint("Equal", 19, 21),
    Sketcher.Constraint("Equal", 18, 22),
    Sketcher.Constraint("Equal", 21, 23),
    Sketcher.Constraint("Equal", 20, 24),
    Sketcher.Constraint("Symmetric", 2, 3, 14, 3, -1, 1),
    Sketcher.Constraint("Symmetric", 6, 3, 18, 3, -1, 1),
    Sketcher.Constraint("Symmetric", 10, 3, 22, 3, -1, 1),
    Sketcher.Constraint("Symmetric", 2, 3, 10, 3, -2),
    Sketcher.Constraint("PointOnObject", 6, 3, -2),
    Sketcher.Constraint("Radius", 1, Q("0.1 in")),
    Sketcher.Constraint("Radius", 4, Q("1.25 in")),
    Sketcher.Constraint("Diameter", 0, Q("75.5 mm")),
    Sketcher.Constraint("Radius", 2, Q("10.758339 mm")),
    Sketcher.Constraint("DistanceX", -1, 1, 3, 3, Q("17.539999 mm")),
    Sketcher.Constraint("DistanceX", 5, 3, 1, 3, Q("17.539999 mm")),
    Sketcher.Constraint("DistanceY", -1, 1, 2, 3, Q("16.809169 mm")),
])
pad3 = body2.newObject("PartDesign::Pad", "Pad002")
pad3.Profile = sketch4
pad3.Length = Q("0.125 in")
pad3.Reversed = True

sketch5 = body2.newObject("Sketcher::SketchObject", "Sketch004")
sketch5.AttachmentSupport = (doc.getObject("XZ_Plane001"), [""])
sketch5.MapMode = "FlatFace"
sketch5.AttachmentOffset = App.Placement(V(0, 0, -0.505 * 25.4), App.Rotation())
sketch5.addGeometry([
    Part.ArcOfCircle(Part.Circle(V(-17.5, -23.4, 0), V(0, 0, 1), 2.5), math.radians(151), math.radians(233)),
    Part.ArcOfCircle(Part.Circle(V(-29.1, -16.8, 0), V(0, 0, 1), 10.8), math.radians(-29), math.radians(89)),
    Part.ArcOfCircle(Part.Circle(V(-29, -3.5, 0), V(0, 0, 1), 2.5), math.radians(-173), math.radians(-91)),
    Part.ArcOfCircle(Part.Circle(V(0, 0, 0), V(0, 0, 1), 31.8), math.radians(173.1), math.radians(186.9)),
    Part.ArcOfCircle(Part.Circle(V(-29, 3.5, 0), V(0, 0, 1), 2.5), math.radians(91), math.radians(173)),
    Part.ArcOfCircle(Part.Circle(V(-29.1, 16.8, 0), V(0, 0, 1), 10.8), math.radians(-89), math.radians(29)),
    Part.ArcOfCircle(Part.Circle(V(-17.5, 23.4, 0), V(0, 0, 1), 2.5), math.radians(127), math.radians(209)),
    Part.ArcOfCircle(Part.Circle(V(0, 0, 0), V(0, 0, 1), 31.8), math.radians(113.1), math.radians(126.9)),
    Part.ArcOfCircle(Part.Circle(V(-11.5, 26.9, 0), V(0, 0, 1), 2.5), math.radians(31), math.radians(113)),
    Part.ArcOfCircle(Part.Circle(V(0, 33.6, 0), V(0, 0, 1), 10.8), math.radians(-149), math.radians(-31)),
    Part.ArcOfCircle(Part.Circle(V(11.5, 26.9, 0), V(0, 0, 1), 2.5), math.radians(67), math.radians(149)),
    Part.ArcOfCircle(Part.Circle(V(0, 0, 0), V(0, 0, 1), 31.8), math.radians(53.1), math.radians(66.9)),
    Part.ArcOfCircle(Part.Circle(V(17.5, 23.4, 0), V(0, 0, 1), 2.5), math.radians(-29), math.radians(53)),
    Part.ArcOfCircle(Part.Circle(V(29.1, 16.8, 0), V(0, 0, 1), 10.8), math.radians(151), math.radians(269)),
    Part.ArcOfCircle(Part.Circle(V(29, 3.5, 0), V(0, 0, 1), 2.5), math.radians(7), math.radians(89)),
    Part.ArcOfCircle(Part.Circle(V(0, 0, 0), V(0, 0, 1), 31.8), math.radians(-6.9), math.radians(6.9)),
    Part.ArcOfCircle(Part.Circle(V(29, -3.5, 0), V(0, 0, 1), 2.5), math.radians(-89), math.radians(-7)),
    Part.ArcOfCircle(Part.Circle(V(29.1, -16.8, 0), V(0, 0, 1), 10.8), math.radians(91), math.radians(209)),
    Part.ArcOfCircle(Part.Circle(V(17.5, -23.4, 0), V(0, 0, 1), 2.5), math.radians(-53), math.radians(29)),
    Part.ArcOfCircle(Part.Circle(V(0, 0, 0), V(0, 0, 1), 31.8), math.radians(-66.9), math.radians(-53.1)),
    Part.ArcOfCircle(Part.Circle(V(11.5, -26.9, 0), V(0, 0, 1), 2.5), math.radians(-149), math.radians(-67)),
    Part.ArcOfCircle(Part.Circle(V(0, -33.6, 0), V(0, 0, 1), 10.8), math.radians(31), math.radians(149)),
    Part.ArcOfCircle(Part.Circle(V(-11.5, -26.9, 0), V(0, 0, 1), 2.5), math.radians(-113), math.radians(-31)),
    Part.ArcOfCircle(Part.Circle(V(0, 0, 0), V(0, 0, 1), 31.8), math.radians(-126.9), math.radians(-113.1)),
    Part.ArcOfCircle(Part.Circle(V(0, 0, 0), V(0, 0, 1), 28.8), math.radians(173.89), math.radians(186.11)),
    Part.ArcOfCircle(Part.Circle(V(-29.1, -16.8, 0), V(0, 0, 1), 13.8), math.radians(-28), math.radians(88)),
    Part.ArcOfCircle(Part.Circle(V(0, 0, 0), V(0, 0, 1), 28.7), math.radians(-126.11), math.radians(-113.89)),
    Part.ArcOfCircle(Part.Circle(V(0, -33.6, 0), V(0, 0, 1), 13.8), math.radians(32), math.radians(148)),
    Part.ArcOfCircle(Part.Circle(V(0, 0, 0), V(0, 0, 1), 28.7), math.radians(-66.11), math.radians(-53.89)),
    Part.ArcOfCircle(Part.Circle(V(29.1, -16.8, 0), V(0, 0, 1), 13.8), math.radians(92), math.radians(208)),
    Part.ArcOfCircle(Part.Circle(V(0, 0, 0), V(0, 0, 1), 28.8), math.radians(-6.11), math.radians(6.11)),
    Part.ArcOfCircle(Part.Circle(V(29.1, 16.8, 0), V(0, 0, 1), 13.8), math.radians(152), math.radians(268)),
    Part.ArcOfCircle(Part.Circle(V(0, 0, 0), V(0, 0, 1), 28.7), math.radians(53.89), math.radians(66.11)),
    Part.ArcOfCircle(Part.Circle(V(0, 33.6, 0), V(0, 0, 1), 13.8), math.radians(-148), math.radians(-32)),
    Part.ArcOfCircle(Part.Circle(V(0, 0, 0), V(0, 0, 1), 28.7), math.radians(113.89), math.radians(126.11)),
    Part.ArcOfCircle(Part.Circle(V(-29.1, 16.8, 0), V(0, 0, 1), 13.8), math.radians(-88), math.radians(28)),
], False)
sketch5.addConstraint([
    Sketcher.Constraint("Tangent", 0, 1, 1, 1),
    Sketcher.Constraint("Tangent", 1, 2, 2, 2),
    Sketcher.Constraint("Tangent", 2, 1, 3, 2),
    Sketcher.Constraint("Tangent", 3, 1, 4, 2),
    Sketcher.Constraint("Tangent", 4, 1, 5, 1),
    Sketcher.Constraint("Tangent", 5, 2, 6, 2),
    Sketcher.Constraint("Tangent", 6, 1, 7, 2),
    Sketcher.Constraint("Tangent", 7, 1, 8, 2),
    Sketcher.Constraint("Tangent", 8, 1, 9, 1),
    Sketcher.Constraint("Tangent", 9, 2, 10, 2),
    Sketcher.Constraint("Tangent", 10, 1, 11, 2),
    Sketcher.Constraint("Tangent", 11, 1, 12, 2),
    Sketcher.Constraint("Tangent", 12, 1, 13, 1),
    Sketcher.Constraint("Tangent", 13, 2, 14, 2),
    Sketcher.Constraint("Tangent", 14, 1, 15, 2),
    Sketcher.Constraint("Tangent", 15, 1, 16, 2),
    Sketcher.Constraint("Tangent", 16, 1, 17, 1),
    Sketcher.Constraint("Tangent", 17, 2, 18, 2),
    Sketcher.Constraint("Tangent", 18, 1, 19, 2),
    Sketcher.Constraint("Tangent", 19, 1, 20, 2),
    Sketcher.Constraint("Tangent", 20, 1, 21, 1),
    Sketcher.Constraint("Tangent", 21, 2, 22, 2),
    Sketcher.Constraint("Tangent", 22, 1, 23, 2),
    Sketcher.Constraint("Tangent", 23, 1, 0, 2),
    Sketcher.Constraint("Coincident", 24, 2, 25, 2),
    Sketcher.Constraint("Coincident", 25, 1, 26, 1),
    Sketcher.Constraint("Coincident", 26, 2, 27, 2),
    Sketcher.Constraint("Coincident", 27, 1, 28, 1),
    Sketcher.Constraint("Coincident", 28, 2, 29, 2),
    Sketcher.Constraint("Coincident", 29, 1, 30, 1),
    Sketcher.Constraint("Coincident", 30, 2, 31, 2),
    Sketcher.Constraint("Coincident", 31, 1, 32, 1),
    Sketcher.Constraint("Coincident", 32, 2, 33, 2),
    Sketcher.Constraint("Coincident", 33, 1, 34, 1),
    Sketcher.Constraint("Coincident", 34, 2, 35, 2),
    Sketcher.Constraint("Coincident", 35, 1, 24, 1),
    Sketcher.Constraint("Coincident", 3, 3, -1, 1),
    Sketcher.Constraint("Coincident", 7, 3, -1, 1),
    Sketcher.Constraint("Coincident", 11, 3, -1, 1),
    Sketcher.Constraint("Coincident", 15, 3, -1, 1),
    Sketcher.Constraint("Coincident", 19, 3, -1, 1),
    Sketcher.Constraint("Coincident", 23, 3, -1, 1),
    Sketcher.Constraint("Coincident", 24, 3, -1, 1),
    Sketcher.Constraint("Coincident", 26, 3, -1, 1),
    Sketcher.Constraint("Coincident", 28, 3, -1, 1),
    Sketcher.Constraint("Coincident", 30, 3, -1, 1),
    Sketcher.Constraint("Coincident", 32, 3, -1, 1),
    Sketcher.Constraint("Coincident", 34, 3, -1, 1),
    Sketcher.Constraint("Coincident", 25, 3, 1, 3),
    Sketcher.Constraint("Coincident", 27, 3, 21, 3),
    Sketcher.Constraint("Coincident", 29, 3, 17, 3),
    Sketcher.Constraint("Coincident", 31, 3, 13, 3),
    Sketcher.Constraint("Coincident", 33, 3, 9, 3),
    Sketcher.Constraint("Coincident", 35, 3, 5, 3),
    Sketcher.Constraint("Equal", 0, 2),
    Sketcher.Constraint("Equal", 2, 4),
    Sketcher.Constraint("Equal", 1, 5),
    Sketcher.Constraint("Equal", 4, 6),
    Sketcher.Constraint("Equal", 3, 7),
    Sketcher.Constraint("Equal", 6, 8),
    Sketcher.Constraint("Equal", 5, 9),
    Sketcher.Constraint("Equal", 8, 10),
    Sketcher.Constraint("Equal", 7, 11),
    Sketcher.Constraint("Equal", 10, 12),
    Sketcher.Constraint("Equal", 9, 13),
    Sketcher.Constraint("Equal", 12, 14),
    Sketcher.Constraint("Equal", 11, 15),
    Sketcher.Constraint("Equal", 14, 16),
    Sketcher.Constraint("Equal", 13, 17),
    Sketcher.Constraint("Equal", 16, 18),
    Sketcher.Constraint("Equal", 15, 19),
    Sketcher.Constraint("Equal", 18, 20),
    Sketcher.Constraint("Equal", 17, 21),
    Sketcher.Constraint("Equal", 20, 22),
    Sketcher.Constraint("Equal", 19, 23),
    Sketcher.Constraint("Equal", 24, 26),
    Sketcher.Constraint("Equal", 25, 27),
    Sketcher.Constraint("Equal", 26, 28),
    Sketcher.Constraint("Equal", 27, 29),
    Sketcher.Constraint("Equal", 28, 30),
    Sketcher.Constraint("Equal", 29, 31),
    Sketcher.Constraint("Equal", 30, 32),
    Sketcher.Constraint("Equal", 31, 33),
    Sketcher.Constraint("Equal", 32, 34),
    Sketcher.Constraint("Equal", 33, 35),
    Sketcher.Constraint("Symmetric", 1, 3, 13, 3, -1, 1),
    Sketcher.Constraint("Symmetric", 5, 3, 17, 3, -1, 1),
    Sketcher.Constraint("Symmetric", 9, 3, 21, 3, -1, 1),
    Sketcher.Constraint("Symmetric", 5, 3, 13, 3, -2),
    Sketcher.Constraint("PointOnObject", 9, 3, -2),
    Sketcher.Constraint("Radius", 0, Q("0.1 in")),
    Sketcher.Constraint("Radius", 3, Q("1.25 in")),
    Sketcher.Constraint("Radius", 24, Q("28.75 mm")),
    Sketcher.Constraint("Radius", 1, Q("10.758339 mm")),
    Sketcher.Constraint("Radius", 25, Q("13.758339 mm")),
    Sketcher.Constraint("DistanceX", 0, 3, -1, 1, Q("17.539999 mm")),
    Sketcher.Constraint("DistanceY", 1, 3, -1, 1, Q("16.809169 mm")),
    Sketcher.Constraint("DistanceY", -1, 1, 8, 3, Q("26.868832 mm")),
])
pad4 = body2.newObject("PartDesign::Pad", "Pad003")
pad4.Profile = sketch5
pad4.Length = 3.15

sketch6 = body2.newObject("Sketcher::SketchObject", "Sketch005")
sketch6.AttachmentSupport = (doc.getObject("XZ_Plane001"), [""])
sketch6.MapMode = "FlatFace"
sketch6.AttachmentOffset = App.Placement(V(0, 0, -0.505 * 25.4), App.Rotation())
sketch6.addGeometry([
    Part.Circle(V(-24, 24, 0), V(0, 0, 1), 2),
    Part.Circle(V(32, -8, 0), V(0, 0, 1), 2),
    Part.Circle(V(0, -32, 0), V(0, 0, 1), 2),
    Part.Circle(V(0, 32, 0), V(0, 0, 1), 2),
], False)
sketch6.addConstraint([
    Sketcher.Constraint("Equal", 0, 1),
    Sketcher.Constraint("Equal", 1, 2),
    Sketcher.Constraint("Equal", 2, 3),
    Sketcher.Constraint("Symmetric", 2, 3, 3, 3, -1, 1),
    Sketcher.Constraint("PointOnObject", 2, 3, -2),
    Sketcher.Constraint("Diameter", 0, Q("4 mm")),
    Sketcher.Constraint("DistanceX", 0, 3, -1, 1, Q("24 mm")),
    Sketcher.Constraint("DistanceY", -1, 1, 0, 3, Q("24 mm")),
    Sketcher.Constraint("DistanceX", -1, 1, 1, 3, Q("32 mm")),
    Sketcher.Constraint("DistanceY", 1, 3, -1, 1, Q("8 mm")),
    Sketcher.Constraint("DistanceY", 2, 3, -1, 1, Q("32 mm")),
])
pocket2 = body2.newObject("PartDesign::Pocket", "Pocket001")
pocket2.Profile = sketch6
pocket2.Type = "ThroughAll"
pocket2.Reversed = True

sketch7 = body2.newObject("Sketcher::SketchObject", "Sketch006")
sketch7.AttachmentSupport = (doc.getObject("XZ_Plane001"), [""])
sketch7.MapMode = "FlatFace"
sketch7.AttachmentOffset = App.Placement(V(0, 0, -0.505 * 25.4), App.Rotation())
sketch7.addGeometry(Part.Circle(V(0, 1, 0), V(0, 0, 1), 28), False)
sketch7.addConstraint([
    Sketcher.Constraint("PointOnObject", 0, 3, -2),
    Sketcher.Constraint("Diameter", 0, Q("56.462295 mm")),
    Sketcher.Constraint("DistanceY", -1, 1, 0, 3, Q("0.731147 mm")),
])
pocket3 = body2.newObject("PartDesign::Pocket", "Pocket002")
pocket3.Profile = sketch7
pocket3.Type = "ThroughAll"
pocket3.Reversed = True

sketch8 = body2.newObject("Sketcher::SketchObject", "Sketch007")
sketch8.AttachmentSupport = (doc.getObject("XZ_Plane001"), [""])
sketch8.MapMode = "FlatFace"
sketch8.addGeometry([
    Part.ArcOfCircle(Part.Circle(V(-24, 24, 0), V(0, 0, 1), 2), math.radians(-128), math.radians(38)),
    Part.ArcOfCircle(Part.Circle(V(0, 0, 0), V(0, 0, 1), 33.7), math.radians(138), math.radians(268)),
    Part.ArcOfCircle(Part.Circle(V(0, -32, 0), V(0, 0, 1), 2), math.radians(-60), math.radians(240)),
    Part.ArcOfCircle(Part.Circle(V(0, 0, 0), V(0, 0, 1), 33.7), math.radians(-88), math.radians(-17)),
    Part.ArcOfCircle(Part.Circle(V(32, -8, 0), V(0, 0, 1), 2), math.radians(55), math.radians(277)),
    Part.ArcOfCircle(Part.Circle(V(0, 0, 0), V(0, 0, 1), 33.8), math.radians(-11), math.radians(88)),
    Part.ArcOfCircle(Part.Circle(V(0, 32, 0), V(0, 0, 1), 2), math.radians(120), math.radians(420)),
    Part.ArcOfCircle(Part.Circle(V(0, 0, 0), V(0, 0, 1), 33.7), math.radians(92), math.radians(132)),
], False)
sketch8.addConstraint([
    Sketcher.Constraint("Coincident", 0, 1, 1, 1),
    Sketcher.Constraint("Coincident", 1, 2, 2, 2),
    Sketcher.Constraint("Coincident", 2, 1, 3, 1),
    Sketcher.Constraint("Coincident", 3, 2, 4, 2),
    Sketcher.Constraint("Coincident", 4, 1, 5, 1),
    Sketcher.Constraint("Coincident", 5, 2, 6, 2),
    Sketcher.Constraint("Coincident", 6, 1, 7, 1),
    Sketcher.Constraint("Coincident", 7, 2, 0, 2),
    Sketcher.Constraint("Coincident", 1, 3, -1, 1),
    Sketcher.Constraint("Coincident", 3, 3, -1, 1),
    Sketcher.Constraint("Coincident", 5, 3, -1, 1),
    Sketcher.Constraint("Coincident", 7, 3, -1, 1),
    Sketcher.Constraint("Equal", 0, 2),
    Sketcher.Constraint("Equal", 1, 3),
    Sketcher.Constraint("Equal", 2, 4),
    Sketcher.Constraint("Equal", 3, 5),
    Sketcher.Constraint("Equal", 4, 6),
    Sketcher.Constraint("Equal", 5, 7),
    Sketcher.Constraint("Symmetric", 2, 3, 6, 3, -1, 1),
    Sketcher.Constraint("PointOnObject", 2, 3, -2),
    Sketcher.Constraint("Radius", 0, Q("2 mm")),
    Sketcher.Constraint("Radius", 1, Q("33.75 mm")),
    Sketcher.Constraint("DistanceX", 0, 3, -1, 1, Q("24 mm")),
    Sketcher.Constraint("DistanceY", -1, 1, 0, 3, Q("24 mm")),
    Sketcher.Constraint("DistanceY", 2, 3, -1, 1, Q("32 mm")),
    Sketcher.Constraint("DistanceX", -1, 1, 4, 3, Q("32 mm")),
    Sketcher.Constraint("DistanceY", 4, 3, -1, 1, Q("8 mm")),
])
pocket4 = body2.newObject("PartDesign::Pocket", "Pocket003")
pocket4.Profile = sketch8
pocket4.Length = 5

doc.recompute()
